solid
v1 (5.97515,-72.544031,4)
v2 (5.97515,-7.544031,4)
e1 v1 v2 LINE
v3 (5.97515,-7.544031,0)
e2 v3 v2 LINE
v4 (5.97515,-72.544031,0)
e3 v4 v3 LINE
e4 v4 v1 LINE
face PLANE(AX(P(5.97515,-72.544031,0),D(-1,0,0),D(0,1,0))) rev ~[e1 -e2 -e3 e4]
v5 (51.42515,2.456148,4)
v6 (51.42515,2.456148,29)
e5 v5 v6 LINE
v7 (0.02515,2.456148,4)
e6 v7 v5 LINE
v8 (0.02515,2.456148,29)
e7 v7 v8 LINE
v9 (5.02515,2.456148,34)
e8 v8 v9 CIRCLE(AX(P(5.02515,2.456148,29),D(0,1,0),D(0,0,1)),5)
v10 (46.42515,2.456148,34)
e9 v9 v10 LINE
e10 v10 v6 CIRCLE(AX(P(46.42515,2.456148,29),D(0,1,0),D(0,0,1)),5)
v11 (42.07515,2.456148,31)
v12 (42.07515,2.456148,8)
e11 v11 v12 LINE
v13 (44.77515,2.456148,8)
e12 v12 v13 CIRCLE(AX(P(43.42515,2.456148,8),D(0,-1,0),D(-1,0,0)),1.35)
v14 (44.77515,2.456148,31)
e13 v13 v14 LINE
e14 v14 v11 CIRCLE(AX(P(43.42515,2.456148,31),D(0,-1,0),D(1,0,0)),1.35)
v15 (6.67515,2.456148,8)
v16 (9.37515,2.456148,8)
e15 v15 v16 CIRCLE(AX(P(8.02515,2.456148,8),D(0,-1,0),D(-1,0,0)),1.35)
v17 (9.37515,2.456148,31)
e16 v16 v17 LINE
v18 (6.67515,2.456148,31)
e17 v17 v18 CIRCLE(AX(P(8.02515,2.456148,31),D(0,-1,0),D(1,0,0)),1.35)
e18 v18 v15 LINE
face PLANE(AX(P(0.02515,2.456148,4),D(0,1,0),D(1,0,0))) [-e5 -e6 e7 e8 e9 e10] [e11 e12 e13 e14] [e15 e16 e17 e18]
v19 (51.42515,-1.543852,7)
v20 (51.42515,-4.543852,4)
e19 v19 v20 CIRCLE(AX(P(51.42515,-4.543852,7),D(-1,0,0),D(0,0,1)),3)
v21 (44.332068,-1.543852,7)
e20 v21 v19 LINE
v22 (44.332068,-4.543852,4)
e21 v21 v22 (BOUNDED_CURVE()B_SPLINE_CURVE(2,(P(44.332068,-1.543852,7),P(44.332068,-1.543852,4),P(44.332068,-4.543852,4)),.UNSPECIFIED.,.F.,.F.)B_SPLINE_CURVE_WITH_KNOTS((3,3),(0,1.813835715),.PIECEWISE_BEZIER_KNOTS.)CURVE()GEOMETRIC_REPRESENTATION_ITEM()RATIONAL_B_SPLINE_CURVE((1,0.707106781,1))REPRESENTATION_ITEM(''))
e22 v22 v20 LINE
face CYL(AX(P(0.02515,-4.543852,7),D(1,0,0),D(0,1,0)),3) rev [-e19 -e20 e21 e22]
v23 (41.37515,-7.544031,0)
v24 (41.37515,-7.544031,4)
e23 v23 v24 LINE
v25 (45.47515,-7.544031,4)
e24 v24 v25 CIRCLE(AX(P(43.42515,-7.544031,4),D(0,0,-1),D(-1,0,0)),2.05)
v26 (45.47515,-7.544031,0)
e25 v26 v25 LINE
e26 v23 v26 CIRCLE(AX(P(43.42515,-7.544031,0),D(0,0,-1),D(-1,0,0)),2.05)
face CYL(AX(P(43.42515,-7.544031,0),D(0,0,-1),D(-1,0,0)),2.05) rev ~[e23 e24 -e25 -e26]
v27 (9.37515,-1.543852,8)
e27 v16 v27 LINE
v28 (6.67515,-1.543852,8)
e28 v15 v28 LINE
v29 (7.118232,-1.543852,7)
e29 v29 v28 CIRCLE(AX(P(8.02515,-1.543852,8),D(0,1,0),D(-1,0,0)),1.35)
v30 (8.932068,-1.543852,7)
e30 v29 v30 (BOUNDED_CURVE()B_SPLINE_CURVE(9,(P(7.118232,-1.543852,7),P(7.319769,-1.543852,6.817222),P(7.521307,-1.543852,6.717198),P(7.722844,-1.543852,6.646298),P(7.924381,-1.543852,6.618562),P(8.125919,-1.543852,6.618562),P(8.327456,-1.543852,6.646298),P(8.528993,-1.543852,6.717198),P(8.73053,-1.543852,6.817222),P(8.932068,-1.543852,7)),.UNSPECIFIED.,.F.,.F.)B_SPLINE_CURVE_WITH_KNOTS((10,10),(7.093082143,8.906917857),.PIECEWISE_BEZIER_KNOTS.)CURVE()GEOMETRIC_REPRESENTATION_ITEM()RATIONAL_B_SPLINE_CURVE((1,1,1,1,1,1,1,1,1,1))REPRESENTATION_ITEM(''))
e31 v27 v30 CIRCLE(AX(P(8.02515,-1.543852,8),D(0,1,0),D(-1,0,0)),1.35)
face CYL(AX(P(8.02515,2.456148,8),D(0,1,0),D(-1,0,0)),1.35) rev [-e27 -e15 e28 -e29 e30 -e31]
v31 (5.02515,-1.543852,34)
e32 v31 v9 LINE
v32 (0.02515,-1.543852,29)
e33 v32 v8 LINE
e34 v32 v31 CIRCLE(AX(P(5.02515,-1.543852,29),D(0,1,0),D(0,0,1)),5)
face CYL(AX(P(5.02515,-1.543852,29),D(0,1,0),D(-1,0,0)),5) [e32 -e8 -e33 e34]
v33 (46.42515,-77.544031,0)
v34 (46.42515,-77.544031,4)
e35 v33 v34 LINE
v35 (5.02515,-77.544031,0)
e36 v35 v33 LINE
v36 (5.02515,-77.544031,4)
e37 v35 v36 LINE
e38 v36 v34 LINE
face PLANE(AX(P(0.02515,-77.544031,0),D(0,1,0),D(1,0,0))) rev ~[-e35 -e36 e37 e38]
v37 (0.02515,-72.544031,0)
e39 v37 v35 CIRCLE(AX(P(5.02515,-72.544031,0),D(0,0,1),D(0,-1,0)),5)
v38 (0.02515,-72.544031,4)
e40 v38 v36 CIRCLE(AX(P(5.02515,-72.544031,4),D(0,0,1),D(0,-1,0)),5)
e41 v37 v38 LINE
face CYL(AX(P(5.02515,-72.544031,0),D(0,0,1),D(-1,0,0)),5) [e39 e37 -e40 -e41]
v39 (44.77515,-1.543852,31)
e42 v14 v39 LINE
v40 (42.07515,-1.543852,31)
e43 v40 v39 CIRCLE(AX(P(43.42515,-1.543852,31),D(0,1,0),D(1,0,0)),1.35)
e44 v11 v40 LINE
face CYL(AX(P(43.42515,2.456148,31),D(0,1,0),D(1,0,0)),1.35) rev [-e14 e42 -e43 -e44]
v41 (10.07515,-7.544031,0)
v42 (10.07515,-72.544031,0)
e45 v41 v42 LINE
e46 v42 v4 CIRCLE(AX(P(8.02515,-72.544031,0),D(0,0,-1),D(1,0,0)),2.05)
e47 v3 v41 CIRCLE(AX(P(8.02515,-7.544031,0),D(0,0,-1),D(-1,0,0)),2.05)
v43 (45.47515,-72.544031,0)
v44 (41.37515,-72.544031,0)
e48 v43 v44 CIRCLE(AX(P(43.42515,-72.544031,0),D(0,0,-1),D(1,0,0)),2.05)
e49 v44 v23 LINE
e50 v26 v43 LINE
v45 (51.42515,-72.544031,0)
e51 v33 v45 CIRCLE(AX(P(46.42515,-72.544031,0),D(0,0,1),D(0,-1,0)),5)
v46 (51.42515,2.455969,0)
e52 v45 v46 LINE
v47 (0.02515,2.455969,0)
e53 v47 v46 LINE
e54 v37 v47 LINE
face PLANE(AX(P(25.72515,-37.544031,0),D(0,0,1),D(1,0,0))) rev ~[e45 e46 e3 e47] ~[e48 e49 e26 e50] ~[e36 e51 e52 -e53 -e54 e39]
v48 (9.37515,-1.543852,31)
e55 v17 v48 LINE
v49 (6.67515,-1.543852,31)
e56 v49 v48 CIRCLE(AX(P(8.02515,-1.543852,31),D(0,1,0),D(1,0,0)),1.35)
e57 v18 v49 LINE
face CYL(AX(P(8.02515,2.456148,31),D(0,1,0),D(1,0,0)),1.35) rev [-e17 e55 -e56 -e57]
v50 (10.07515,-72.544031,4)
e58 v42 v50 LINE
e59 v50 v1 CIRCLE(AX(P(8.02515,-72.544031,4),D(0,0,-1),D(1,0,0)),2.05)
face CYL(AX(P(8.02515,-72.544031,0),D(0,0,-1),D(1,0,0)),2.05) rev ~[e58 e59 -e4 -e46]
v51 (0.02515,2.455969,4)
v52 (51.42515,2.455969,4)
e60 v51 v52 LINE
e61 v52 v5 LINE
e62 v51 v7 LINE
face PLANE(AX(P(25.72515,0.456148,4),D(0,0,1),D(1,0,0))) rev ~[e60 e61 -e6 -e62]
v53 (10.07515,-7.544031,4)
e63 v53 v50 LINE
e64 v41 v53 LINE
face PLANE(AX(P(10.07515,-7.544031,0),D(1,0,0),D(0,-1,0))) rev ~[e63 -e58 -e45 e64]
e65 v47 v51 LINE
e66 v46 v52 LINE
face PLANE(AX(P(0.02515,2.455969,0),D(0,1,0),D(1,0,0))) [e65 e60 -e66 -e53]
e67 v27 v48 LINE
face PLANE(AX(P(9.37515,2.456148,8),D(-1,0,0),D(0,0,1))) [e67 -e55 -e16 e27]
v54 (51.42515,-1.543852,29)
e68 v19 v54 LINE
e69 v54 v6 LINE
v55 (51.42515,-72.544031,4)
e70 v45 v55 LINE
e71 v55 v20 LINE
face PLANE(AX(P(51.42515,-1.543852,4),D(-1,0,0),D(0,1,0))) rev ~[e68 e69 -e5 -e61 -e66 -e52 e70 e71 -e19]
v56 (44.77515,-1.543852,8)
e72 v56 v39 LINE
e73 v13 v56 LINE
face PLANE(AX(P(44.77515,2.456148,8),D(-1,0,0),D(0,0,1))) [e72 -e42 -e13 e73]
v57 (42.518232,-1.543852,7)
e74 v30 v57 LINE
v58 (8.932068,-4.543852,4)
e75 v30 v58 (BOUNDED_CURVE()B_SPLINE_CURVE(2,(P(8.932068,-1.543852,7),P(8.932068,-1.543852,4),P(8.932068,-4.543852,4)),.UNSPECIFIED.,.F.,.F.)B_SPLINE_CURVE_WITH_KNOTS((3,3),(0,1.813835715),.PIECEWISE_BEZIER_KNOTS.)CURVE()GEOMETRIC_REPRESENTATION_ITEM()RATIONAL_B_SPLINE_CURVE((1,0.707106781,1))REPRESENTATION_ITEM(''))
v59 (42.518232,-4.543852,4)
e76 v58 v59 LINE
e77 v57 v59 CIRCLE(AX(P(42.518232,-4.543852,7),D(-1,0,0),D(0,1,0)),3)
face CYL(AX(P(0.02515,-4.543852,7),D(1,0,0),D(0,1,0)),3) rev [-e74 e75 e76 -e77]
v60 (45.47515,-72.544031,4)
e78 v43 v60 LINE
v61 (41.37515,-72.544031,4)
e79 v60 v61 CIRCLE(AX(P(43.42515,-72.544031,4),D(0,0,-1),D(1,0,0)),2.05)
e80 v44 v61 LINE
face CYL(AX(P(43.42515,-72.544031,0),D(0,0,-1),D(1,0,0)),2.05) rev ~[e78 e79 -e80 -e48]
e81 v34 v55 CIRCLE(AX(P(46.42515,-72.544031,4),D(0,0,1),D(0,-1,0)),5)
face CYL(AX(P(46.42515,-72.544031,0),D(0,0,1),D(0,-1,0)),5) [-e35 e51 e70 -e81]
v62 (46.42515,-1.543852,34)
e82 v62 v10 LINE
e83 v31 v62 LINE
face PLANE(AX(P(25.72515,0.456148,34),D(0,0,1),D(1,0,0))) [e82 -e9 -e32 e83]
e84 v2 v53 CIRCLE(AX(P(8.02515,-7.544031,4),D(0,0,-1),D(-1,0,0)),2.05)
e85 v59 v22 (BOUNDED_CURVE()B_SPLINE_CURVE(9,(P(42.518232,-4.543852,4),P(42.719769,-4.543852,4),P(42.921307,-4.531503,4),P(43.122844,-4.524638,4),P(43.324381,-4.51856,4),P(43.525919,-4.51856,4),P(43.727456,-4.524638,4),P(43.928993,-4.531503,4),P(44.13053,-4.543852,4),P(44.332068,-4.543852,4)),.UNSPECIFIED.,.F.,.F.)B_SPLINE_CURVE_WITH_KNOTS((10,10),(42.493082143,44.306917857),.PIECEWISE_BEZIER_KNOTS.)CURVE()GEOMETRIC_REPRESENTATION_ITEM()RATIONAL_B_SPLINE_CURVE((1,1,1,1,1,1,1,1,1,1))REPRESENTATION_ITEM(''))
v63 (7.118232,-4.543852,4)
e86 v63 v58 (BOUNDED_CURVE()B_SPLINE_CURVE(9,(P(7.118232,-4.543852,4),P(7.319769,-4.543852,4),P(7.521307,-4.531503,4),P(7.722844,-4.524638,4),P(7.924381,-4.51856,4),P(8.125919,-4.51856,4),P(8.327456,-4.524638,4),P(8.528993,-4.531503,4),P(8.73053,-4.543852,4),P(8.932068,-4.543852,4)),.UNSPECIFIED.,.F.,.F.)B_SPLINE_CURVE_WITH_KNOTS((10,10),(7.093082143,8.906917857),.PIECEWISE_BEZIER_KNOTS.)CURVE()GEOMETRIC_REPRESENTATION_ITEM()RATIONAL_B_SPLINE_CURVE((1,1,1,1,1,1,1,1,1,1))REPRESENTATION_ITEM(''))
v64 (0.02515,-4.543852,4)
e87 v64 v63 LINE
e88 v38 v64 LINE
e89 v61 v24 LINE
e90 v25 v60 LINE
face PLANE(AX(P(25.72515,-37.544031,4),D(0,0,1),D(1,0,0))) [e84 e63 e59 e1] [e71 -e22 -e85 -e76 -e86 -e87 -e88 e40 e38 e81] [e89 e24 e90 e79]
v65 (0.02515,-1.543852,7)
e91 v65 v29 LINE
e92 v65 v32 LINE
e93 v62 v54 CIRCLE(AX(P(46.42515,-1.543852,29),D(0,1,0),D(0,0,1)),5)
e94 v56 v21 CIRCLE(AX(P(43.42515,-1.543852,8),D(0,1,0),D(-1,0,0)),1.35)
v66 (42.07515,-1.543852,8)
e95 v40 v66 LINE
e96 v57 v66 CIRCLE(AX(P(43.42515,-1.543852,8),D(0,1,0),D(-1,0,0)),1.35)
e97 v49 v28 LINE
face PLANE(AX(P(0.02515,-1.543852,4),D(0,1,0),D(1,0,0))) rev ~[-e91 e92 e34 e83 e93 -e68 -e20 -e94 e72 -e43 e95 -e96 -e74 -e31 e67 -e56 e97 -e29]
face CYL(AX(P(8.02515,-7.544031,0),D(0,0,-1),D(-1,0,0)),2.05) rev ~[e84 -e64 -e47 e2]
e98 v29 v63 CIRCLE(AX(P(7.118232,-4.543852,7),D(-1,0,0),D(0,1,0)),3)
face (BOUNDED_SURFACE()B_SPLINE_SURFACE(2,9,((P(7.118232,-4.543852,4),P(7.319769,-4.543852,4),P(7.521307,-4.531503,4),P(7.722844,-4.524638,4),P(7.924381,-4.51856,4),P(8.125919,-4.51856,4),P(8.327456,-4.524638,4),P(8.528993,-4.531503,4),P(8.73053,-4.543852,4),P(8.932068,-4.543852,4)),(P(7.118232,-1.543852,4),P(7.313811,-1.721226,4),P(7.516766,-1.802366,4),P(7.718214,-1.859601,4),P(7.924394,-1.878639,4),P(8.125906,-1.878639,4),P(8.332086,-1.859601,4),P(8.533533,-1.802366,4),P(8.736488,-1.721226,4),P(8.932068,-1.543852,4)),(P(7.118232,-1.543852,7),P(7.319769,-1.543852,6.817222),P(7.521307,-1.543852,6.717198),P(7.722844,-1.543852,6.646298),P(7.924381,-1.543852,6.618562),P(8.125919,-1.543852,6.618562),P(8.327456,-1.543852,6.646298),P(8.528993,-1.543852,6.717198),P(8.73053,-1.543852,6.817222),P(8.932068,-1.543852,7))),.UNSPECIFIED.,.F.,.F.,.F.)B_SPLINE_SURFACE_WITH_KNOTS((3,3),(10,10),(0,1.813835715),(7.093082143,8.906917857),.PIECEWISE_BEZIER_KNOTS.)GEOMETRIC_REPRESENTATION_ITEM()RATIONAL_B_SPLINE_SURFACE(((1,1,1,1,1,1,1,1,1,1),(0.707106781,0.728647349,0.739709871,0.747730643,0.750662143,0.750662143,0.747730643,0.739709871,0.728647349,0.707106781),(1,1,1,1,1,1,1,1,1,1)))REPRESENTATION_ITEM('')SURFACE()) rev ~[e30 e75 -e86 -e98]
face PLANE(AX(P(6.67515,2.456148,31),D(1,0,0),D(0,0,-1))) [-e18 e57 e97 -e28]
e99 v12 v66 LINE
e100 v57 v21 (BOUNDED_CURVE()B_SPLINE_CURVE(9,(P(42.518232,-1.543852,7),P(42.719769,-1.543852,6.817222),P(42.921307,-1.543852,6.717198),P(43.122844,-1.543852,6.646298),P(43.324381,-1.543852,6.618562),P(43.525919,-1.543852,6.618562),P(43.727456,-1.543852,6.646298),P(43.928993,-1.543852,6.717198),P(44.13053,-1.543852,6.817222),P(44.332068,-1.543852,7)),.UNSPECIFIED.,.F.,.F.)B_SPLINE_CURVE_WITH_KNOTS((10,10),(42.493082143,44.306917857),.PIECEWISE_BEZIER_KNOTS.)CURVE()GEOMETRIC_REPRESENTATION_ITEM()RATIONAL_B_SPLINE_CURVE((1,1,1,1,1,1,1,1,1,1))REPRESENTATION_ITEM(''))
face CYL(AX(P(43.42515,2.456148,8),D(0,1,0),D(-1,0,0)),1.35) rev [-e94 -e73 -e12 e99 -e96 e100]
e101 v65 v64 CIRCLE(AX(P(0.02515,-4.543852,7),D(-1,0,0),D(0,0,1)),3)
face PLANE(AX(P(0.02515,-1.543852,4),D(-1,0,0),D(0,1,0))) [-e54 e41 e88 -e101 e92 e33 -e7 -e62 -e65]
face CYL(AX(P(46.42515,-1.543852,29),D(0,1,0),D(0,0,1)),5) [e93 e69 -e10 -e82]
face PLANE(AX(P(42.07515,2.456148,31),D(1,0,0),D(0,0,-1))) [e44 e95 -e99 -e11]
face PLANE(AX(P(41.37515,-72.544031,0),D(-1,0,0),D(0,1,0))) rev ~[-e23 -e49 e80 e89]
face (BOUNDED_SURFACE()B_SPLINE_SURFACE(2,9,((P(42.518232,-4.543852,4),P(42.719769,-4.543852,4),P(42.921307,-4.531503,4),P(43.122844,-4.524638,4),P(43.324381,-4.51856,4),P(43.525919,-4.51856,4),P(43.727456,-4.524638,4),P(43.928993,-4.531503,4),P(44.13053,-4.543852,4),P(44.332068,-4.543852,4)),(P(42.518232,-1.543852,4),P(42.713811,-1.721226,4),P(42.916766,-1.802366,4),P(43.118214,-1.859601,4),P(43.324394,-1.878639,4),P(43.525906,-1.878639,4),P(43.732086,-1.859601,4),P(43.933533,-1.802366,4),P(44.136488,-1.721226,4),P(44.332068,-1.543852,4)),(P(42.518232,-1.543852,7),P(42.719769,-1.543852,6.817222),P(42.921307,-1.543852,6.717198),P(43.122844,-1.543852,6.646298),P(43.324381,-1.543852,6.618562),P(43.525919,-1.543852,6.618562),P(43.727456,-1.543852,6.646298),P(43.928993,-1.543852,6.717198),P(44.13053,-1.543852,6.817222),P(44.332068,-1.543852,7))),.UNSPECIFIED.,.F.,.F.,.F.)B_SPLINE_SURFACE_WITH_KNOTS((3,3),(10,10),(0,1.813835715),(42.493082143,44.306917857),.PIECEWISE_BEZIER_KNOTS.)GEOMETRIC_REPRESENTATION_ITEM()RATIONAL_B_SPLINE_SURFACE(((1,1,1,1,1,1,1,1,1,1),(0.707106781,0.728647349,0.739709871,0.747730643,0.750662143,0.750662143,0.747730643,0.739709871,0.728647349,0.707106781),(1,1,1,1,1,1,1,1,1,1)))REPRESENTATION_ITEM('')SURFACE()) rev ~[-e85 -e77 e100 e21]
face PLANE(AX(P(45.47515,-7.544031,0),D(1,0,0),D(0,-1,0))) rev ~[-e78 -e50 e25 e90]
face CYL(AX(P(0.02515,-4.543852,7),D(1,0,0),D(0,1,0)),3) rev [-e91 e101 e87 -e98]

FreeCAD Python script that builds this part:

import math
import FreeCAD as App
import Part
import Sketcher
from FreeCAD import Vector
Q = App.Units.Quantity


def edges_at(feature, points):
    """Names of the edges that pass closest to the given points."""
    edges = feature.Shape.Edges
    near = lambda p: min(range(len(edges)), key=lambda i: edges[i].distToShape(Part.Vertex(*p))[0])
    return sorted({f"Edge{near(p) + 1}" for p in points})

doc = App.newDocument("Part")
body = doc.addObject("PartDesign::Body", "Body")

sketch1 = body.newObject("Sketcher::SketchObject", "Sketch")
sketch1.AttachmentSupport = (doc.getObject("XY_Plane"), [""])
sketch1.MapMode = "FlatFace"
sketch1.addGeometry(Part.LineSegment(Vector(0, 2.5, 0), Vector(0, -77.5, 0)), False)
sketch1.addGeometry(Part.LineSegment(Vector(0, -77.5, 0), Vector(51.4, -77.5, 0)), False)
sketch1.addGeometry(Part.LineSegment(Vector(51.4, -77.5, 0), Vector(51.4, 2.5, 0)), False)
sketch1.addGeometry(Part.LineSegment(Vector(51.4, 2.5, 0), Vector(0, 2.5, 0)), False)
sketch1.addGeometry(Part.ArcOfCircle(Part.Circle(Vector(8, -7.5, 0), Vector(0, 0, 1), 2), math.radians(0), math.radians(180)), False)
sketch1.addGeometry(Part.LineSegment(Vector(10.1, -7.5, 0), Vector(10.1, -72.5, 0)), False)
sketch1.addGeometry(Part.ArcOfCircle(Part.Circle(Vector(8, -72.5, 0), Vector(0, 0, 1), 2), math.radians(180), math.radians(360)), False)
sketch1.addGeometry(Part.LineSegment(Vector(6, -72.5, 0), Vector(6, -7.5, 0)), False)
sketch1.addGeometry(Part.ArcOfCircle(Part.Circle(Vector(43.4, -72.5, 0), Vector(0, 0, 1), 2), math.radians(180), math.radians(360)), False)
sketch1.addGeometry(Part.LineSegment(Vector(41.4, -72.5, 0), Vector(41.4, -7.5, 0)), False)
sketch1.addGeometry(Part.ArcOfCircle(Part.Circle(Vector(43.4, -7.5, 0), Vector(0, 0, 1), 2), math.radians(0), math.radians(180)), False)
sketch1.addGeometry(Part.LineSegment(Vector(45.5, -7.5, 0), Vector(45.5, -72.5, 0)), False)
sketch1.addConstraint(Sketcher.Constraint("Coincident", 0, 2, 1, 1))
sketch1.addConstraint(Sketcher.Constraint("Coincident", 1, 2, 2, 1))
sketch1.addConstraint(Sketcher.Constraint("Coincident", 2, 2, 3, 1))
sketch1.addConstraint(Sketcher.Constraint("Coincident", 3, 2, 0, 1))
sketch1.addConstraint(Sketcher.Constraint("Tangent", 4, 1, 5, 1))
sketch1.addConstraint(Sketcher.Constraint("Tangent", 5, 2, 6, 2))
sketch1.addConstraint(Sketcher.Constraint("Tangent", 6, 1, 7, 1))
sketch1.addConstraint(Sketcher.Constraint("Tangent", 7, 2, 4, 2))
sketch1.addConstraint(Sketcher.Constraint("Tangent", 8, 1, 9, 1))
sketch1.addConstraint(Sketcher.Constraint("Tangent", 9, 2, 10, 2))
sketch1.addConstraint(Sketcher.Constraint("Tangent", 10, 1, 11, 1))
sketch1.addConstraint(Sketcher.Constraint("Tangent", 11, 2, 8, 2))
sketch1.addConstraint(Sketcher.Constraint("Vertical", 0))
sketch1.addConstraint(Sketcher.Constraint("Horizontal", 1))
sketch1.addConstraint(Sketcher.Constraint("Vertical", 2))
sketch1.addConstraint(Sketcher.Constraint("Horizontal", 3))
sketch1.addConstraint(Sketcher.Constraint("Vertical", 5))
sketch1.addConstraint(Sketcher.Constraint("Vertical", 7))
sketch1.addConstraint(Sketcher.Constraint("Vertical", 9))
sketch1.addConstraint(Sketcher.Constraint("Vertical", 11))
sketch1.addConstraint(Sketcher.Constraint("Equal", 6, 8))
sketch1.addConstraint(Sketcher.Constraint("Horizontal", 6, 3, 8, 3))
sketch1.addConstraint(Sketcher.Constraint("Horizontal", 4, 3, 10, 3))
sketch1.addConstraint(Sketcher.Constraint("DistanceY", 0, 2, 0, 1, Q("80 mm")))
sketch1.addConstraint(Sketcher.Constraint("DistanceY", 5, 2, 5, 1, Q("65 mm")))
sketch1.addConstraint(Sketcher.Constraint("Radius", 4, Q("2.05 mm")))
sketch1.addConstraint(Sketcher.Constraint("DistanceX", 1, 1, 1, 2, Q("51.4 mm")))
sketch1.addConstraint(Sketcher.Constraint("DistanceX", 0, 2, 6, 3, Q("8 mm")))
sketch1.addConstraint(Sketcher.Constraint("DistanceY", 0, 2, 6, 3, Q("5 mm")))
sketch1.addConstraint(Sketcher.Constraint("DistanceX", 8, 3, 1, 2, Q("8 mm")))
sketch1.addConstraint(Sketcher.Constraint("DistanceX", -1, 1, 4, 3, Q("8.02515 mm")))
sketch1.addConstraint(Sketcher.Constraint("DistanceY", 4, 3, -1, 1, Q("7.544031 mm")))
pad1 = body.newObject("PartDesign::Pad", "Pad")
pad1.Profile = sketch1
pad1.Length = 4

sketch2 = body.newObject("Sketcher::SketchObject", "Sketch001")
sketch2.AttachmentSupport = (doc.getObject("XY_Plane"), [""])
sketch2.MapMode = "FlatFace"
sketch2.AttachmentOffset = App.Placement(Vector(0, 0, 4), App.Rotation())
sketch2.addGeometry(Part.LineSegment(Vector(0, 2.5, 0), Vector(0, -1.5, 0)), False)
sketch2.addGeometry(Part.LineSegment(Vector(0, -1.5, 0), Vector(51.4, -1.5, 0)), False)
sketch2.addGeometry(Part.LineSegment(Vector(51.4, -1.5, 0), Vector(51.4, 2.5, 0)), False)
sketch2.addGeometry(Part.LineSegment(Vector(51.4, 2.5, 0), Vector(0, 2.5, 0)), False)
sketch2.addConstraint(Sketcher.Constraint("Coincident", 0, 2, 1, 1))
sketch2.addConstraint(Sketcher.Constraint("Coincident", 1, 2, 2, 1))
sketch2.addConstraint(Sketcher.Constraint("Coincident", 2, 2, 3, 1))
sketch2.addConstraint(Sketcher.Constraint("Coincident", 3, 2, 0, 1))
sketch2.addConstraint(Sketcher.Constraint("Vertical", 0))
sketch2.addConstraint(Sketcher.Constraint("Horizontal", 1))
sketch2.addConstraint(Sketcher.Constraint("Vertical", 2))
sketch2.addConstraint(Sketcher.Constraint("Horizontal", 3))
sketch2.addConstraint(Sketcher.Constraint("DistanceY", 0, 2, 0, 1, Q("4 mm")))
sketch2.addConstraint(Sketcher.Constraint("DistanceX", 1, 1, 1, 2, Q("51.4 mm")))
sketch2.addConstraint(Sketcher.Constraint("DistanceX", -1, 1, 0, 2, Q("0.02515 mm")))
sketch2.addConstraint(Sketcher.Constraint("DistanceY", 0, 2, -1, 1, Q("1.543852 mm")))
pad2 = body.newObject("PartDesign::Pad", "Pad001")
pad2.Profile = sketch2
pad2.Length = 30

sketch3 = body.newObject("Sketcher::SketchObject", "Sketch002")
sketch3.AttachmentSupport = (doc.getObject("XZ_Plane"), [""])
sketch3.MapMode = "FlatFace"
sketch3.AttachmentOffset = App.Placement(Vector(0, 0, -2.456148), App.Rotation())
sketch3.addGeometry(Part.LineSegment(Vector(9.4, 31, 0), Vector(9.4, 8, 0)), False)
sketch3.addGeometry(Part.ArcOfCircle(Part.Circle(Vector(8, 8, 0), Vector(0, 0, 1), 1.4), math.radians(180), math.radians(360)), False)
sketch3.addGeometry(Part.LineSegment(Vector(6.7, 8, 0), Vector(6.7, 31, 0)), False)
sketch3.addGeometry(Part.ArcOfCircle(Part.Circle(Vector(8, 31, 0), Vector(0, 0, 1), 1.4), math.radians(0), math.radians(180)), False)
sketch3.addGeometry(Part.LineSegment(Vector(42.1, 8, 0), Vector(42.1, 31, 0)), False)
sketch3.addGeometry(Part.ArcOfCircle(Part.Circle(Vector(43.4, 31, 0), Vector(0, 0, 1), 1.4), math.radians(0), math.radians(180)), False)
sketch3.addGeometry(Part.LineSegment(Vector(44.8, 31, 0), Vector(44.8, 8, 0)), False)
sketch3.addGeometry(Part.ArcOfCircle(Part.Circle(Vector(43.4, 8, 0), Vector(0, 0, 1), 1.4), math.radians(180), math.radians(360)), False)
sketch3.addConstraint(Sketcher.Constraint("Tangent", 0, 2, 1, 2))
sketch3.addConstraint(Sketcher.Constraint("Tangent", 1, 1, 2, 1))
sketch3.addConstraint(Sketcher.Constraint("Tangent", 2, 2, 3, 2))
sketch3.addConstraint(Sketcher.Constraint("Tangent", 3, 1, 0, 1))
sketch3.addConstraint(Sketcher.Constraint("Tangent", 4, 2, 5, 2))
sketch3.addConstraint(Sketcher.Constraint("Tangent", 5, 1, 6, 1))
sketch3.addConstraint(Sketcher.Constraint("Tangent", 6, 2, 7, 2))
sketch3.addConstraint(Sketcher.Constraint("Tangent", 7, 1, 4, 1))
sketch3.addConstraint(Sketcher.Constraint("Vertical", 0))
sketch3.addConstraint(Sketcher.Constraint("Vertical", 2))
sketch3.addConstraint(Sketcher.Constraint("Vertical", 4))
sketch3.addConstraint(Sketcher.Constraint("Vertical", 6))
sketch3.addConstraint(Sketcher.Constraint("Equal", 3, 5))
sketch3.addConstraint(Sketcher.Constraint("Horizontal", 3, 3, 5, 3))
sketch3.addConstraint(Sketcher.Constraint("Horizontal", 1, 3, 7, 3))
sketch3.addConstraint(Sketcher.Constraint("DistanceY", 0, 2, 0, 1, Q("23 mm")))
sketch3.addConstraint(Sketcher.Constraint("Radius", 1, Q("1.35 mm")))
sketch3.addConstraint(Sketcher.Constraint("DistanceY", -1, 1, 1, 3, Q("8 mm")))
sketch3.addConstraint(Sketcher.Constraint("DistanceX", 3, 3, 5, 3, Q("35.4 mm")))
sketch3.addConstraint(Sketcher.Constraint("DistanceX", -1, 1, 1, 3, Q("8.02515 mm")))
pocket1 = body.newObject("PartDesign::Pocket", "Pocket")
pocket1.Profile = sketch3
pocket1.Type = "ThroughAll"
pocket1.Reversed = True
doc.recompute()

fillet = body.newObject("PartDesign::Fillet", "Fillet")
fillet.Base = (pocket1, edges_at(pocket1, [
    (0.025, 0.456, 34),
    (51.425, 0.456, 34),
    (51.425, -77.544, 2),
    (0.025, -77.544, 2),
]))
fillet.Radius = 5
doc.recompute()

fillet2 = body.newObject("PartDesign::Fillet", "Fillet001")
fillet2.Base = (fillet, edges_at(fillet, [(25.725, -1.544, 4)]))
fillet2.Radius = 3

doc.recompute()
